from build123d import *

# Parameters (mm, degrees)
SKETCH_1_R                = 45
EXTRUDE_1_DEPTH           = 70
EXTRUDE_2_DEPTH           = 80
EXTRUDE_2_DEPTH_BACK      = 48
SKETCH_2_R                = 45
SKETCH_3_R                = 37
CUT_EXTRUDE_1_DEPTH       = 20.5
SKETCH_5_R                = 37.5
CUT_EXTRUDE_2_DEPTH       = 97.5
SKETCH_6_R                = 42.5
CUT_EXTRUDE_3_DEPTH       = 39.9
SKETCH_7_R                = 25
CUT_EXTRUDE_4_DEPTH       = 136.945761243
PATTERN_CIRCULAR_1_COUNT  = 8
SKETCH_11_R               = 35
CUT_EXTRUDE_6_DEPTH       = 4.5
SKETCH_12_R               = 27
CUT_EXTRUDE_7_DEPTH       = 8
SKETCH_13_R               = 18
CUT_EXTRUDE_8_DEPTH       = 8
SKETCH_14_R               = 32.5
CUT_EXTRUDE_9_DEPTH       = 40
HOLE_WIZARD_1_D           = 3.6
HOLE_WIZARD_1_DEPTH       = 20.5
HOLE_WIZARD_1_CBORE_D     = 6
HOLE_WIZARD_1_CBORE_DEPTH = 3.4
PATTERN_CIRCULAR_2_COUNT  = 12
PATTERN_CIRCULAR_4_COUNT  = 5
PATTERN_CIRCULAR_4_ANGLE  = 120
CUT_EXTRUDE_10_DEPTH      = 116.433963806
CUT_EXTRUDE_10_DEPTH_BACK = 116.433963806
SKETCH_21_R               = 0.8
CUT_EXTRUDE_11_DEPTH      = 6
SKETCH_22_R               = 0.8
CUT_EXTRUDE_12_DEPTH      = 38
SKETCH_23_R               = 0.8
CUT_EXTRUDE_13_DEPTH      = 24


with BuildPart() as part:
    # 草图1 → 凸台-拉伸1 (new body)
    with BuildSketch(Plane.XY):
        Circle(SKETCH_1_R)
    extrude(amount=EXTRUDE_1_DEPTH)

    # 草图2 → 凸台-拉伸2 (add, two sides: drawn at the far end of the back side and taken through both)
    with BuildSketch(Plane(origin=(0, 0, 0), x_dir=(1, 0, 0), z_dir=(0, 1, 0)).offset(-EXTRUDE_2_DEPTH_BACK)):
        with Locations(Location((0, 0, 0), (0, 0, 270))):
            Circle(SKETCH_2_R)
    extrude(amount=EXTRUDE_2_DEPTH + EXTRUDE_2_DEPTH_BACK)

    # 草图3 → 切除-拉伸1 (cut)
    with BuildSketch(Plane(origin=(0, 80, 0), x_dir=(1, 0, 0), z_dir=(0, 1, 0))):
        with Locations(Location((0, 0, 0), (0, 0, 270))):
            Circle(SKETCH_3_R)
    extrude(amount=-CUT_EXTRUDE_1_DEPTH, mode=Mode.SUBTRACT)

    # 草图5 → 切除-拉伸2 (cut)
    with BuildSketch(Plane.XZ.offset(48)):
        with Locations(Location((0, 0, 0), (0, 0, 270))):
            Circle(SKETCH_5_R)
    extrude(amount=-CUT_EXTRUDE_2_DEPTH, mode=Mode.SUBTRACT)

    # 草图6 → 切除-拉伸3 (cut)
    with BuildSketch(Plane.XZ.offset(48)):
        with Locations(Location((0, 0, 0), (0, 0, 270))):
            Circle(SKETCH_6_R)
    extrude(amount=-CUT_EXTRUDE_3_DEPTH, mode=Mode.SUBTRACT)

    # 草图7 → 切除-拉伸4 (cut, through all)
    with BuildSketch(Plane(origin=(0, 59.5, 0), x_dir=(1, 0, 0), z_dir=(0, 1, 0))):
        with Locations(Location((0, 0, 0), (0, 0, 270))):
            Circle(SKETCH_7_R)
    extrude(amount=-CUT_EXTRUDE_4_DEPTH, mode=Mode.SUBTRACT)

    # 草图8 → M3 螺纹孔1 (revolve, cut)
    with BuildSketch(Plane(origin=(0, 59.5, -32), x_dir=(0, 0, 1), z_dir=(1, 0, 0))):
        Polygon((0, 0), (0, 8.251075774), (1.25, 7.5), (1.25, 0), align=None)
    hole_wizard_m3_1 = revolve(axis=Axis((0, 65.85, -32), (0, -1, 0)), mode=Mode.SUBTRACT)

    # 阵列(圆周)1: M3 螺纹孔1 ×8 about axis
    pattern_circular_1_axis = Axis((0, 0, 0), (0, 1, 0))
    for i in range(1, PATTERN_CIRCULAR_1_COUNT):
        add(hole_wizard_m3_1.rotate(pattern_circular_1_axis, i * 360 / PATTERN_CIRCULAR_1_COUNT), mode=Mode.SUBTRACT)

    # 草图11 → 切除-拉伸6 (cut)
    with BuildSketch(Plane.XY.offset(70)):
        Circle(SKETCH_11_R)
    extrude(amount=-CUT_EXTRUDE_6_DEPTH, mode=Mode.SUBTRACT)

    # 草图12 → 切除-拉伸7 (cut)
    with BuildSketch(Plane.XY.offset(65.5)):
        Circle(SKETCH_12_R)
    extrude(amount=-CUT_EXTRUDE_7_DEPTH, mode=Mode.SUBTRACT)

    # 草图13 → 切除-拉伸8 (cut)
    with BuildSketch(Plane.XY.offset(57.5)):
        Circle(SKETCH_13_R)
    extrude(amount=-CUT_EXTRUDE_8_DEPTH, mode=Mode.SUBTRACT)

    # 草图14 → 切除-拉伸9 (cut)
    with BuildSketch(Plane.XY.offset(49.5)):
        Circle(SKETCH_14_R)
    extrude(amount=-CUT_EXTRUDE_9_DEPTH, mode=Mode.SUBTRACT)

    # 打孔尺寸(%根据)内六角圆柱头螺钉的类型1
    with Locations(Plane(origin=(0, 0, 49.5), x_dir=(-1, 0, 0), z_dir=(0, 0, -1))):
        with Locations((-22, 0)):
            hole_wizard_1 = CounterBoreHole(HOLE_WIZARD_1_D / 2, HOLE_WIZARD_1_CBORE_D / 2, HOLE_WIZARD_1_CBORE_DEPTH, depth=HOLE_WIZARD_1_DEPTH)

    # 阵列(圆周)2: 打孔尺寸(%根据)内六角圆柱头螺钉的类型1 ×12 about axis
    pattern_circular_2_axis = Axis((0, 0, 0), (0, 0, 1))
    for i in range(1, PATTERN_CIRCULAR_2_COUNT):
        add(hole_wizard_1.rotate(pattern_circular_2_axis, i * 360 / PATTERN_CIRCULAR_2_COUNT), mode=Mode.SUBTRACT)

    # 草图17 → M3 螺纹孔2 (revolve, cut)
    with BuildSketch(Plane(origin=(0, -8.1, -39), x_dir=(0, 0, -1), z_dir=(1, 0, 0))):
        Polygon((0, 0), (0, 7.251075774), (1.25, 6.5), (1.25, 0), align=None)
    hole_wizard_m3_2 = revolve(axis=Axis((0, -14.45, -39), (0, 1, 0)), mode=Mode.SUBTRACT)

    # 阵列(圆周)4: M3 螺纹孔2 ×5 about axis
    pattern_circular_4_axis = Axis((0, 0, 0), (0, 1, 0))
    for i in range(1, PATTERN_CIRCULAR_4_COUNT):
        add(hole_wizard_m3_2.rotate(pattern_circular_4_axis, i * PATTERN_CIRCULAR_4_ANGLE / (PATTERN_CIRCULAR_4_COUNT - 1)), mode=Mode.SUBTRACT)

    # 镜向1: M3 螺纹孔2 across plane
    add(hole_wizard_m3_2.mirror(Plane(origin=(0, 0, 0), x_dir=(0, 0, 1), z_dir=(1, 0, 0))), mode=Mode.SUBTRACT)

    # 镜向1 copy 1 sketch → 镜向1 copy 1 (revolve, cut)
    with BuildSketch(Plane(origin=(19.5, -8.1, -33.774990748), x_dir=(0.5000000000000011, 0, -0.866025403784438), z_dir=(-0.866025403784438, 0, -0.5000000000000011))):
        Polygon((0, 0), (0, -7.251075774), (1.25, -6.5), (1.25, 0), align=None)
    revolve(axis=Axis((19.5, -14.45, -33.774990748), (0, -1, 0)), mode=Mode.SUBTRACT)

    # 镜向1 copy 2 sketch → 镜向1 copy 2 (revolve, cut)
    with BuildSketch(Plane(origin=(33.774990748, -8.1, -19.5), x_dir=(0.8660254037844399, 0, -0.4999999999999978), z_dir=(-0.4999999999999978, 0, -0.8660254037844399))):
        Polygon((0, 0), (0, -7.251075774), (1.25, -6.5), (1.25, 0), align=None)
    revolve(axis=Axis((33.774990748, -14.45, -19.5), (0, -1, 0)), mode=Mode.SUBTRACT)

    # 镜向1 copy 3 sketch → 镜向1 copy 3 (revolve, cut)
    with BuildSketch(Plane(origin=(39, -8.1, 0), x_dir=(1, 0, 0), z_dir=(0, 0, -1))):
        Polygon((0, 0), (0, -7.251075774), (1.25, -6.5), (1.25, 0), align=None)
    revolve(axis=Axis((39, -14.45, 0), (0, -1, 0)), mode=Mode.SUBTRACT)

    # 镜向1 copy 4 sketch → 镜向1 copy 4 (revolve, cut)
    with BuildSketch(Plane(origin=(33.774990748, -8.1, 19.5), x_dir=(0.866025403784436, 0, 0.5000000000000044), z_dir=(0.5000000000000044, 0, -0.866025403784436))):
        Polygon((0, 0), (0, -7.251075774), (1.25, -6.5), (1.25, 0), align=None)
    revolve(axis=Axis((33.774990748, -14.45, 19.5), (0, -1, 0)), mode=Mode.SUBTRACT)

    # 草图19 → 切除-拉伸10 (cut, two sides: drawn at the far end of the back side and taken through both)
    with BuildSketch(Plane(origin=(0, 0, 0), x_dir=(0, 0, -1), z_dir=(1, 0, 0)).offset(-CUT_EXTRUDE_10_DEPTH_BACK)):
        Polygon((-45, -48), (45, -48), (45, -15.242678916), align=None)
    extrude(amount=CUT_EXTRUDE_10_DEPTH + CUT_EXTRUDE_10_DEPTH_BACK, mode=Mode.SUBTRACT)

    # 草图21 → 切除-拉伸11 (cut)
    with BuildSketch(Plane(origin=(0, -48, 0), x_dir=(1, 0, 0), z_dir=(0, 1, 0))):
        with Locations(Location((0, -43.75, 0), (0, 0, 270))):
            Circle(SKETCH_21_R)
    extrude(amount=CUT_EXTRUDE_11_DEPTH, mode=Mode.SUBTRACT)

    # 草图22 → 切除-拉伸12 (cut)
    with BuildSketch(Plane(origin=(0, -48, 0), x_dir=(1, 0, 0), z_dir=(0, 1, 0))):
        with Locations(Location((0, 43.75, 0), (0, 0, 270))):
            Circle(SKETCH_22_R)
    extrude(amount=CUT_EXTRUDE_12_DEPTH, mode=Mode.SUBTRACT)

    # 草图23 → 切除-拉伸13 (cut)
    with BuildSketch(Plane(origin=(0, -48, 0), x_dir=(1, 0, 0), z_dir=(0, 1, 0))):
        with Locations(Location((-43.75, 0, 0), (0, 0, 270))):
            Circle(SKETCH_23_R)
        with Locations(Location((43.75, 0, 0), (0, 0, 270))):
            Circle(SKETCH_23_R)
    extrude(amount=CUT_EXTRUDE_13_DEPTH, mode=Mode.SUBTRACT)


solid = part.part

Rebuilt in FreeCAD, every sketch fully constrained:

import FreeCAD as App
import Part
import Sketcher
from FreeCAD import Vector
Q = App.Units.Quantity


def add_polygon(sketch, points):
    """Adds a closed chain of lines whose ends are joined by coincident constraints."""
    first, n = sketch.GeometryCount, len(points)
    for a, b in zip(points, points[1:] + points[:1]):
        sketch.addGeometry(Part.LineSegment(App.Vector(*a, 0), App.Vector(*b, 0)), False)
    for i in range(n):
        sketch.addConstraint(Sketcher.Constraint("Coincident", first + i, 2, first + (i + 1) % n, 1))

doc = App.newDocument("Part")
body = doc.addObject("PartDesign::Body", "Body")

# Sketch on XY plane
sketch1 = doc.addObject("Sketcher::SketchObject", "Sketch")
body.addObject(sketch1)
sketch1.AttachmentSupport = (doc.XY_Plane, [""])
sketch1.MapMode = "FlatFace"
sketch1.addGeometry(Part.Circle(Vector(0, 0, 0), Vector(0, 0, 1), 45), False)
sketch1.addConstraint(Sketcher.Constraint("Coincident", 0, 3, -1, 1))
sketch1.addConstraint(Sketcher.Constraint("Diameter", 0, 90.0))
pad1 = doc.addObject("PartDesign::Pad", "Pad")
body.addObject(pad1)
pad1.Profile = sketch1
pad1.Length = 70

# Sketch on XZ plane
sketch2 = doc.addObject("Sketcher::SketchObject", "Sketch001")
body.addObject(sketch2)
sketch2.AttachmentSupport = (doc.XZ_Plane, [""])
sketch2.MapMode = "FlatFace"
sketch2.addGeometry(Part.Circle(Vector(0, 0, 0), Vector(0, 0, 1), 45), False)
sketch2.addConstraint(Sketcher.Constraint("Coincident", 0, 3, -1, 1))
sketch2.addConstraint(Sketcher.Constraint("Diameter", 0, 90.0))
pad2 = doc.addObject("PartDesign::Pad", "Pad001")
body.addObject(pad2)
pad2.Profile = sketch2
pad2.Type = "TwoLengths"
pad2.Length = 80
pad2.Length2 = 48
pad2.Reversed = True

# Sketch on XZ plane
sketch3 = doc.addObject("Sketcher::SketchObject", "Sketch002")
body.addObject(sketch3)
sketch3.AttachmentSupport = (doc.XZ_Plane, [""])
sketch3.MapMode = "FlatFace"
sketch3.AttachmentOffset = App.Placement(Vector(0, 0, -80), App.Rotation())
sketch3.addGeometry(Part.Circle(Vector(0, 0, 0), Vector(0, 0, 1), 37), False)
sketch3.addConstraint(Sketcher.Constraint("Coincident", 0, 3, -1, 1))
sketch3.addConstraint(Sketcher.Constraint("Diameter", 0, 74.0))
pocket1 = doc.addObject("PartDesign::Pocket", "Pocket")
body.addObject(pocket1)
pocket1.Profile = sketch3
pocket1.Length = 20.5
pocket1.Reversed = True

# Sketch on XZ plane
sketch4 = doc.addObject("Sketcher::SketchObject", "Sketch003")
body.addObject(sketch4)
sketch4.AttachmentSupport = (doc.XZ_Plane, [""])
sketch4.MapMode = "FlatFace"
sketch4.AttachmentOffset = App.Placement(Vector(0, 0, 48), App.Rotation())
sketch4.addGeometry(Part.Circle(Vector(0, 0, 0), Vector(0, 0, 1), 37.5), False)
sketch4.addConstraint(Sketcher.Constraint("Coincident", 0, 3, -1, 1))
sketch4.addConstraint(Sketcher.Constraint("Diameter", 0, 75.0))
pocket2 = doc.addObject("PartDesign::Pocket", "Pocket001")
body.addObject(pocket2)
pocket2.Profile = sketch4
pocket2.Length = 97.5

# Sketch on XZ plane
sketch5 = doc.addObject("Sketcher::SketchObject", "Sketch004")
body.addObject(sketch5)
sketch5.AttachmentSupport = (doc.XZ_Plane, [""])
sketch5.MapMode = "FlatFace"
sketch5.AttachmentOffset = App.Placement(Vector(0, 0, 48), App.Rotation())
sketch5.addGeometry(Part.Circle(Vector(0, 0, 0), Vector(0, 0, 1), 42.5), False)
sketch5.addConstraint(Sketcher.Constraint("Coincident", 0, 3, -1, 1))
sketch5.addConstraint(Sketcher.Constraint("Diameter", 0, 85.0))
pocket3 = doc.addObject("PartDesign::Pocket", "Pocket002")
body.addObject(pocket3)
pocket3.Profile = sketch5
pocket3.Length = 39.9

# Sketch on XZ plane
sketch6 = doc.addObject("Sketcher::SketchObject", "Sketch005")
body.addObject(sketch6)
sketch6.AttachmentSupport = (doc.XZ_Plane, [""])
sketch6.MapMode = "FlatFace"
sketch6.AttachmentOffset = App.Placement(Vector(0, 0, -59.5), App.Rotation())
sketch6.addGeometry(Part.Circle(Vector(0, 0, 0), Vector(0, 0, 1), 25), False)
sketch6.addConstraint(Sketcher.Constraint("Coincident", 0, 3, -1, 1))
sketch6.addConstraint(Sketcher.Constraint("Diameter", 0, 50.0))
pocket4 = doc.addObject("PartDesign::Pocket", "Pocket003")
body.addObject(pocket4)
pocket4.Profile = sketch6
pocket4.Type = "ThroughAll"
pocket4.Reversed = True

# Sketch on YZ plane
sketch7 = doc.addObject("Sketcher::SketchObject", "Sketch006")
body.addObject(sketch7)
sketch7.AttachmentSupport = (doc.YZ_Plane, [""])
sketch7.MapMode = "FlatFace"
add_polygon(sketch7, [(51.248924, -32), (59.5, -32), (59.5, -30.75), (52, -30.75)])  # lines 0-3
sketch7.addGeometry(Part.LineSegment(Vector(59.5, -32, 0), Vector(51.248924, -32, 0)), True)  # axis
sketch7.addConstraint(Sketcher.Constraint("Horizontal", 0))
sketch7.addConstraint(Sketcher.Constraint("Vertical", 1))
sketch7.addConstraint(Sketcher.Constraint("Horizontal", 2))
sketch7.addConstraint(Sketcher.Constraint("Horizontal", 4))
sketch7.addConstraint(Sketcher.Constraint("Coincident", 4, 1, 0, 2))
sketch7.addConstraint(Sketcher.Constraint("Equal", 0, 4))
sketch7.addConstraint(Sketcher.Constraint("Angle", 3, Q("-121 deg")))
sketch7.addConstraint(Sketcher.Constraint("DistanceX", 2, 2, 2, 1, 7.5))
sketch7.addConstraint(Sketcher.Constraint("DistanceY", 0, 2, -1, 1, 32.0))
sketch7.addConstraint(Sketcher.Constraint("DistanceX", -1, 1, 2, 2, 52.0))
sketch7.addConstraint(Sketcher.Constraint("DistanceY", 1, 1, 1, 2, 1.25))
groove = doc.addObject("PartDesign::Groove", "Groove")
body.addObject(groove)
groove.Profile = sketch7
groove.ReferenceAxis = (sketch7, ["Axis0"])
groove.Angle = 360
doc.recompute()

polarpattern = doc.addObject("PartDesign::PolarPattern", "PolarPattern")
body.addObject(polarpattern)
polarpattern.Originals = [groove]
polarpattern.Axis = (doc.Y_Axis, [""])
polarpattern.Angle = 360
polarpattern.Occurrences = 8
body.Tip = polarpattern

# Sketch on XY plane
sketch8 = doc.addObject("Sketcher::SketchObject", "Sketch007")
body.addObject(sketch8)
sketch8.AttachmentSupport = (doc.XY_Plane, [""])
sketch8.MapMode = "FlatFace"
sketch8.AttachmentOffset = App.Placement(Vector(0, 0, 70), App.Rotation())
sketch8.addGeometry(Part.Circle(Vector(0, 0, 0), Vector(0, 0, 1), 35), False)
sketch8.addConstraint(Sketcher.Constraint("Coincident", 0, 3, -1, 1))
sketch8.addConstraint(Sketcher.Constraint("Diameter", 0, 70.0))
pocket5 = doc.addObject("PartDesign::Pocket", "Pocket004")
body.addObject(pocket5)
pocket5.Profile = sketch8
pocket5.Length = 4.5

# Sketch on XY plane
sketch9 = doc.addObject("Sketcher::SketchObject", "Sketch008")
body.addObject(sketch9)
sketch9.AttachmentSupport = (doc.XY_Plane, [""])
sketch9.MapMode = "FlatFace"
sketch9.AttachmentOffset = App.Placement(Vector(0, 0, 65.5), App.Rotation())
sketch9.addGeometry(Part.Circle(Vector(0, 0, 0), Vector(0, 0, 1), 27), False)
sketch9.addConstraint(Sketcher.Constraint("Coincident", 0, 3, -1, 1))
sketch9.addConstraint(Sketcher.Constraint("Diameter", 0, 54.0))
pocket6 = doc.addObject("PartDesign::Pocket", "Pocket005")
body.addObject(pocket6)
pocket6.Profile = sketch9
pocket6.Length = 8

# Sketch on XY plane
sketch10 = doc.addObject("Sketcher::SketchObject", "Sketch009")
body.addObject(sketch10)
sketch10.AttachmentSupport = (doc.XY_Plane, [""])
sketch10.MapMode = "FlatFace"
sketch10.AttachmentOffset = App.Placement(Vector(0, 0, 57.5), App.Rotation())
sketch10.addGeometry(Part.Circle(Vector(0, 0, 0), Vector(0, 0, 1), 18), False)
sketch10.addConstraint(Sketcher.Constraint("Coincident", 0, 3, -1, 1))
sketch10.addConstraint(Sketcher.Constraint("Diameter", 0, 36.0))
pocket7 = doc.addObject("PartDesign::Pocket", "Pocket006")
body.addObject(pocket7)
pocket7.Profile = sketch10
pocket7.Length = 8

# Sketch on XY plane
sketch11 = doc.addObject("Sketcher::SketchObject", "Sketch010")
body.addObject(sketch11)
sketch11.AttachmentSupport = (doc.XY_Plane, [""])
sketch11.MapMode = "FlatFace"
sketch11.AttachmentOffset = App.Placement(Vector(0, 0, 49.5), App.Rotation())
sketch11.addGeometry(Part.Circle(Vector(0, 0, 0), Vector(0, 0, 1), 32.5), False)
sketch11.addConstraint(Sketcher.Constraint("Coincident", 0, 3, -1, 1))
sketch11.addConstraint(Sketcher.Constraint("Diameter", 0, 65.0))
pocket8 = doc.addObject("PartDesign::Pocket", "Pocket007")
body.addObject(pocket8)
pocket8.Profile = sketch11
pocket8.Length = 40

# Sketch on XY plane
sketch12 = doc.addObject("Sketcher::SketchObject", "Sketch011")
body.addObject(sketch12)
sketch12.AttachmentSupport = (doc.XY_Plane, [""])
sketch12.MapMode = "FlatFace"
sketch12.AttachmentOffset = App.Placement(Vector(0, 0, 49.5), App.Rotation())
sketch12.addGeometry(Part.Circle(Vector(22, 0, 0), Vector(0, 0, 1), 1.8), False)
sketch12.addConstraint(Sketcher.Constraint("PointOnObject", 0, 3, -1))
sketch12.addConstraint(Sketcher.Constraint("Diameter", 0, 3.6))
sketch12.addConstraint(Sketcher.Constraint("DistanceX", -1, 1, 0, 3, 22.0))
doc.recompute()
hole = doc.addObject("PartDesign::Hole", "Hole")
body.addObject(hole)
hole.Profile = sketch12
hole.ThreadType = "None"
hole.Diameter = 3.6
hole.DepthType = "Dimension"
hole.Depth = 20.5
hole.DrillPoint = "Flat"
hole.HoleCutType = "Counterbore"
hole.HoleCutDiameter = 6
hole.HoleCutDepth = 3.4
hole.Reversed = True
doc.recompute()

polarpattern2 = doc.addObject("PartDesign::PolarPattern", "PolarPattern001")
body.addObject(polarpattern2)
polarpattern2.Originals = [hole]
polarpattern2.Axis = (doc.Z_Axis, [""])
polarpattern2.Angle = 360
polarpattern2.Occurrences = 12
body.Tip = polarpattern2

# Sketch on YZ plane
sketch13 = doc.addObject("Sketcher::SketchObject", "Sketch012")
body.addObject(sketch13)
sketch13.AttachmentSupport = (doc.YZ_Plane, [""])
sketch13.MapMode = "FlatFace"
add_polygon(sketch13, [(-0.848924, -39), (-8.1, -39), (-8.1, -40.25), (-1.6, -40.25)])  # lines 0-3
sketch13.addGeometry(Part.LineSegment(Vector(-8.1, -39, 0), Vector(-0.848924, -39, 0)), True)  # axis
sketch13.addConstraint(Sketcher.Constraint("Horizontal", 0))
sketch13.addConstraint(Sketcher.Constraint("Vertical", 1))
sketch13.addConstraint(Sketcher.Constraint("Horizontal", 2))
sketch13.addConstraint(Sketcher.Constraint("Horizontal", 4))
sketch13.addConstraint(Sketcher.Constraint("Coincident", 4, 1, 0, 2))
sketch13.addConstraint(Sketcher.Constraint("Equal", 0, 4))
sketch13.addConstraint(Sketcher.Constraint("Angle", 3, Q("59 deg")))
sketch13.addConstraint(Sketcher.Constraint("DistanceX", 2, 1, 2, 2, 6.5))
sketch13.addConstraint(Sketcher.Constraint("DistanceY", 0, 2, -1, 1, 39.0))
sketch13.addConstraint(Sketcher.Constraint("DistanceY", 1, 2, 1, 1, 1.25))
sketch13.addConstraint(Sketcher.Constraint("DistanceX", 0, 2, -1, 1, 8.1))
groove2 = doc.addObject("PartDesign::Groove", "Groove001")
body.addObject(groove2)
groove2.Profile = sketch13
groove2.ReferenceAxis = (sketch13, ["Axis0"])
groove2.Angle = 360
doc.recompute()

polarpattern3 = doc.addObject("PartDesign::PolarPattern", "PolarPattern002")
body.addObject(polarpattern3)
polarpattern3.Originals = [groove2]
polarpattern3.Axis = (doc.Y_Axis, [""])
polarpattern3.Angle = 120
polarpattern3.Occurrences = 5
body.Tip = polarpattern3
doc.recompute()

mirrored = doc.addObject("PartDesign::Mirrored", "Mirrored")
body.addObject(mirrored)
mirrored.Originals = [groove2]
mirrored.MirrorPlane = (doc.YZ_Plane, [""])
body.Tip = mirrored

# Sketch on an angled plane
sketch14 = doc.addObject("Sketcher::SketchObject", "Sketch013")
body.addObject(sketch14)
sketch14.Placement = App.Placement(Vector(19.5, -8.1, -33.774991), App.Rotation(Vector(0.5, 0, -0.866025404), Vector(0, -1, 0), Vector(-0.866025404, 0, -0.5), "ZXY"))
add_polygon(sketch14, [(0, 0), (0, -7.251076), (1.25, -6.5), (1.25, 0)])  # lines 0-3
sketch14.addConstraint(Sketcher.Constraint("Vertical", 0))
sketch14.addConstraint(Sketcher.Constraint("Vertical", 2))
sketch14.addConstraint(Sketcher.Constraint("Horizontal", 3))
sketch14.addConstraint(Sketcher.Constraint("Coincident", 3, 2, -1, 1))
sketch14.addConstraint(Sketcher.Constraint("Angle", 1, Q("31 deg")))
sketch14.addConstraint(Sketcher.Constraint("DistanceY", 2, 1, 2, 2, 6.5))
sketch14.addConstraint(Sketcher.Constraint("DistanceX", 3, 2, 3, 1, 1.25))
groove3 = doc.addObject("PartDesign::Groove", "Groove002")
body.addObject(groove3)
groove3.Profile = sketch14
groove3.ReferenceAxis = (sketch14, ["V_Axis"])
groove3.Angle = 360

# Sketch on an angled plane
sketch15 = doc.addObject("Sketcher::SketchObject", "Sketch014")
body.addObject(sketch15)
sketch15.Placement = App.Placement(Vector(33.774991, -8.1, -19.5), App.Rotation(Vector(0.866025404, 0, -0.5), Vector(0, -1, 0), Vector(-0.5, 0, -0.866025404), "ZXY"))
add_polygon(sketch15, [(0, 0), (0, -7.251076), (1.25, -6.5), (1.25, 0)])  # lines 0-3
sketch15.addConstraint(Sketcher.Constraint("Vertical", 0))
sketch15.addConstraint(Sketcher.Constraint("Vertical", 2))
sketch15.addConstraint(Sketcher.Constraint("Horizontal", 3))
sketch15.addConstraint(Sketcher.Constraint("Coincident", 3, 2, -1, 1))
sketch15.addConstraint(Sketcher.Constraint("Angle", 1, Q("31 deg")))
sketch15.addConstraint(Sketcher.Constraint("DistanceY", 2, 1, 2, 2, 6.5))
sketch15.addConstraint(Sketcher.Constraint("DistanceX", 3, 2, 3, 1, 1.25))
groove4 = doc.addObject("PartDesign::Groove", "Groove003")
body.addObject(groove4)
groove4.Profile = sketch15
groove4.ReferenceAxis = (sketch15, ["V_Axis"])
groove4.Angle = 360

# Sketch on XY plane
sketch16 = doc.addObject("Sketcher::SketchObject", "Sketch015")
body.addObject(sketch16)
sketch16.AttachmentSupport = (doc.XY_Plane, [""])
sketch16.MapMode = "FlatFace"
add_polygon(sketch16, [(39, -8.1), (39, -0.848924), (40.25, -1.6), (40.25, -8.1)])  # lines 0-3
sketch16.addGeometry(Part.LineSegment(Vector(39, -0.848924, 0), Vector(39, -8.1, 0)), True)  # axis
sketch16.addConstraint(Sketcher.Constraint("Vertical", 0))
sketch16.addConstraint(Sketcher.Constraint("Vertical", 2))
sketch16.addConstraint(Sketcher.Constraint("Horizontal", 3))
sketch16.addConstraint(Sketcher.Constraint("Vertical", 4))
sketch16.addConstraint(Sketcher.Constraint("Coincident", 4, 1, 0, 2))
sketch16.addConstraint(Sketcher.Constraint("Horizontal", 2, 2, 4, 2))
sketch16.addConstraint(Sketcher.Constraint("Angle", 1, Q("-31 deg")))
sketch16.addConstraint(Sketcher.Constraint("DistanceY", 2, 2, 2, 1, 6.5))
sketch16.addConstraint(Sketcher.Constraint("DistanceX", -1, 1, 0, 2, 39.0))
sketch16.addConstraint(Sketcher.Constraint("DistanceX", 3, 2, 3, 1, 1.25))
sketch16.addConstraint(Sketcher.Constraint("DistanceY", 1, 2, -1, 1, 1.6))
groove5 = doc.addObject("PartDesign::Groove", "Groove004")
body.addObject(groove5)
groove5.Profile = sketch16
groove5.ReferenceAxis = (sketch16, ["Axis0"])
groove5.Angle = 360

# Sketch on an angled plane
sketch17 = doc.addObject("Sketcher::SketchObject", "Sketch016")
body.addObject(sketch17)
sketch17.Placement = App.Placement(Vector(33.774991, -8.1, 19.5), App.Rotation(Vector(0.866025404, 0, 0.5), Vector(0, -1, 0), Vector(0.5, 0, -0.866025404), "ZXY"))
add_polygon(sketch17, [(0, 0), (0, -7.251076), (1.25, -6.5), (1.25, 0)])  # lines 0-3
sketch17.addConstraint(Sketcher.Constraint("Vertical", 0))
sketch17.addConstraint(Sketcher.Constraint("Vertical", 2))
sketch17.addConstraint(Sketcher.Constraint("Horizontal", 3))
sketch17.addConstraint(Sketcher.Constraint("Coincident", 3, 2, -1, 1))
sketch17.addConstraint(Sketcher.Constraint("Angle", 1, Q("31 deg")))
sketch17.addConstraint(Sketcher.Constraint("DistanceY", 2, 1, 2, 2, 6.5))
sketch17.addConstraint(Sketcher.Constraint("DistanceX", 3, 2, 3, 1, 1.25))
groove6 = doc.addObject("PartDesign::Groove", "Groove005")
body.addObject(groove6)
groove6.Profile = sketch17
groove6.ReferenceAxis = (sketch17, ["V_Axis"])
groove6.Angle = 360

# Sketch on YZ plane
sketch18 = doc.addObject("Sketcher::SketchObject", "Sketch017")
body.addObject(sketch18)
sketch18.AttachmentSupport = (doc.YZ_Plane, [""])
sketch18.MapMode = "FlatFace"
add_polygon(sketch18, [(-48, 45), (-48, -45), (-15.242679, -45)])  # lines 0-2
sketch18.addConstraint(Sketcher.Constraint("Vertical", 0))
sketch18.addConstraint(Sketcher.Constraint("Horizontal", 1))
sketch18.addConstraint(Sketcher.Constraint("DistanceY", 0, 2, 0, 1, 90.0))
sketch18.addConstraint(Sketcher.Constraint("Angle", 2, Q("110 deg")))
sketch18.addConstraint(Sketcher.Constraint("DistanceX", 0, 2, -1, 1, 48.0))
sketch18.addConstraint(Sketcher.Constraint("DistanceY", 0, 2, -1, 1, 45.0))
pocket9 = doc.addObject("PartDesign::Pocket", "Pocket008")
body.addObject(pocket9)
pocket9.Profile = sketch18
pocket9.Type = "ThroughAll"
pocket9.Midplane = True

# Sketch on XZ plane
sketch19 = doc.addObject("Sketcher::SketchObject", "Sketch018")
body.addObject(sketch19)
sketch19.AttachmentSupport = (doc.XZ_Plane, [""])
sketch19.MapMode = "FlatFace"
sketch19.AttachmentOffset = App.Placement(Vector(0, 0, 48), App.Rotation())
sketch19.addGeometry(Part.Circle(Vector(0, 43.75, 0), Vector(0, 0, 1), 0.8), False)
sketch19.addConstraint(Sketcher.Constraint("PointOnObject", 0, 3, -2))
sketch19.addConstraint(Sketcher.Constraint("Diameter", 0, 1.6))
sketch19.addConstraint(Sketcher.Constraint("DistanceY", -1, 1, 0, 3, 43.75))
pocket10 = doc.addObject("PartDesign::Pocket", "Pocket009")
body.addObject(pocket10)
pocket10.Profile = sketch19
pocket10.Length = 6

# Sketch on XZ plane
sketch20 = doc.addObject("Sketcher::SketchObject", "Sketch019")
body.addObject(sketch20)
sketch20.AttachmentSupport = (doc.XZ_Plane, [""])
sketch20.MapMode = "FlatFace"
sketch20.AttachmentOffset = App.Placement(Vector(0, 0, 48), App.Rotation())
sketch20.addGeometry(Part.Circle(Vector(0, -43.75, 0), Vector(0, 0, 1), 0.8), False)
sketch20.addConstraint(Sketcher.Constraint("PointOnObject", 0, 3, -2))
sketch20.addConstraint(Sketcher.Constraint("Diameter", 0, 1.6))
sketch20.addConstraint(Sketcher.Constraint("DistanceY", 0, 3, -1, 1, 43.75))
pocket11 = doc.addObject("PartDesign::Pocket", "Pocket010")
body.addObject(pocket11)
pocket11.Profile = sketch20
pocket11.Length = 38

# Sketch on XZ plane
sketch21 = doc.addObject("Sketcher::SketchObject", "Sketch020")
body.addObject(sketch21)
sketch21.AttachmentSupport = (doc.XZ_Plane, [""])
sketch21.MapMode = "FlatFace"
sketch21.AttachmentOffset = App.Placement(Vector(0, 0, 48), App.Rotation())
sketch21.addGeometry(Part.Circle(Vector(-43.75, 0, 0), Vector(0, 0, 1), 0.8), False)
sketch21.addGeometry(Part.Circle(Vector(43.75, 0, 0), Vector(0, 0, 1), 0.8), False)
sketch21.addConstraint(Sketcher.Constraint("Equal", 0, 1))
sketch21.addConstraint(Sketcher.Constraint("Symmetric", 0, 3, 1, 3, -1, 1))
sketch21.addConstraint(Sketcher.Constraint("PointOnObject", 0, 3, -1))
sketch21.addConstraint(Sketcher.Constraint("Diameter", 0, 1.6))
sketch21.addConstraint(Sketcher.Constraint("DistanceX", 0, 3, 1, 3, 87.5))
pocket12 = doc.addObject("PartDesign::Pocket", "Pocket011")
body.addObject(pocket12)
pocket12.Profile = sketch21
pocket12.Length = 24

doc.recompute()
